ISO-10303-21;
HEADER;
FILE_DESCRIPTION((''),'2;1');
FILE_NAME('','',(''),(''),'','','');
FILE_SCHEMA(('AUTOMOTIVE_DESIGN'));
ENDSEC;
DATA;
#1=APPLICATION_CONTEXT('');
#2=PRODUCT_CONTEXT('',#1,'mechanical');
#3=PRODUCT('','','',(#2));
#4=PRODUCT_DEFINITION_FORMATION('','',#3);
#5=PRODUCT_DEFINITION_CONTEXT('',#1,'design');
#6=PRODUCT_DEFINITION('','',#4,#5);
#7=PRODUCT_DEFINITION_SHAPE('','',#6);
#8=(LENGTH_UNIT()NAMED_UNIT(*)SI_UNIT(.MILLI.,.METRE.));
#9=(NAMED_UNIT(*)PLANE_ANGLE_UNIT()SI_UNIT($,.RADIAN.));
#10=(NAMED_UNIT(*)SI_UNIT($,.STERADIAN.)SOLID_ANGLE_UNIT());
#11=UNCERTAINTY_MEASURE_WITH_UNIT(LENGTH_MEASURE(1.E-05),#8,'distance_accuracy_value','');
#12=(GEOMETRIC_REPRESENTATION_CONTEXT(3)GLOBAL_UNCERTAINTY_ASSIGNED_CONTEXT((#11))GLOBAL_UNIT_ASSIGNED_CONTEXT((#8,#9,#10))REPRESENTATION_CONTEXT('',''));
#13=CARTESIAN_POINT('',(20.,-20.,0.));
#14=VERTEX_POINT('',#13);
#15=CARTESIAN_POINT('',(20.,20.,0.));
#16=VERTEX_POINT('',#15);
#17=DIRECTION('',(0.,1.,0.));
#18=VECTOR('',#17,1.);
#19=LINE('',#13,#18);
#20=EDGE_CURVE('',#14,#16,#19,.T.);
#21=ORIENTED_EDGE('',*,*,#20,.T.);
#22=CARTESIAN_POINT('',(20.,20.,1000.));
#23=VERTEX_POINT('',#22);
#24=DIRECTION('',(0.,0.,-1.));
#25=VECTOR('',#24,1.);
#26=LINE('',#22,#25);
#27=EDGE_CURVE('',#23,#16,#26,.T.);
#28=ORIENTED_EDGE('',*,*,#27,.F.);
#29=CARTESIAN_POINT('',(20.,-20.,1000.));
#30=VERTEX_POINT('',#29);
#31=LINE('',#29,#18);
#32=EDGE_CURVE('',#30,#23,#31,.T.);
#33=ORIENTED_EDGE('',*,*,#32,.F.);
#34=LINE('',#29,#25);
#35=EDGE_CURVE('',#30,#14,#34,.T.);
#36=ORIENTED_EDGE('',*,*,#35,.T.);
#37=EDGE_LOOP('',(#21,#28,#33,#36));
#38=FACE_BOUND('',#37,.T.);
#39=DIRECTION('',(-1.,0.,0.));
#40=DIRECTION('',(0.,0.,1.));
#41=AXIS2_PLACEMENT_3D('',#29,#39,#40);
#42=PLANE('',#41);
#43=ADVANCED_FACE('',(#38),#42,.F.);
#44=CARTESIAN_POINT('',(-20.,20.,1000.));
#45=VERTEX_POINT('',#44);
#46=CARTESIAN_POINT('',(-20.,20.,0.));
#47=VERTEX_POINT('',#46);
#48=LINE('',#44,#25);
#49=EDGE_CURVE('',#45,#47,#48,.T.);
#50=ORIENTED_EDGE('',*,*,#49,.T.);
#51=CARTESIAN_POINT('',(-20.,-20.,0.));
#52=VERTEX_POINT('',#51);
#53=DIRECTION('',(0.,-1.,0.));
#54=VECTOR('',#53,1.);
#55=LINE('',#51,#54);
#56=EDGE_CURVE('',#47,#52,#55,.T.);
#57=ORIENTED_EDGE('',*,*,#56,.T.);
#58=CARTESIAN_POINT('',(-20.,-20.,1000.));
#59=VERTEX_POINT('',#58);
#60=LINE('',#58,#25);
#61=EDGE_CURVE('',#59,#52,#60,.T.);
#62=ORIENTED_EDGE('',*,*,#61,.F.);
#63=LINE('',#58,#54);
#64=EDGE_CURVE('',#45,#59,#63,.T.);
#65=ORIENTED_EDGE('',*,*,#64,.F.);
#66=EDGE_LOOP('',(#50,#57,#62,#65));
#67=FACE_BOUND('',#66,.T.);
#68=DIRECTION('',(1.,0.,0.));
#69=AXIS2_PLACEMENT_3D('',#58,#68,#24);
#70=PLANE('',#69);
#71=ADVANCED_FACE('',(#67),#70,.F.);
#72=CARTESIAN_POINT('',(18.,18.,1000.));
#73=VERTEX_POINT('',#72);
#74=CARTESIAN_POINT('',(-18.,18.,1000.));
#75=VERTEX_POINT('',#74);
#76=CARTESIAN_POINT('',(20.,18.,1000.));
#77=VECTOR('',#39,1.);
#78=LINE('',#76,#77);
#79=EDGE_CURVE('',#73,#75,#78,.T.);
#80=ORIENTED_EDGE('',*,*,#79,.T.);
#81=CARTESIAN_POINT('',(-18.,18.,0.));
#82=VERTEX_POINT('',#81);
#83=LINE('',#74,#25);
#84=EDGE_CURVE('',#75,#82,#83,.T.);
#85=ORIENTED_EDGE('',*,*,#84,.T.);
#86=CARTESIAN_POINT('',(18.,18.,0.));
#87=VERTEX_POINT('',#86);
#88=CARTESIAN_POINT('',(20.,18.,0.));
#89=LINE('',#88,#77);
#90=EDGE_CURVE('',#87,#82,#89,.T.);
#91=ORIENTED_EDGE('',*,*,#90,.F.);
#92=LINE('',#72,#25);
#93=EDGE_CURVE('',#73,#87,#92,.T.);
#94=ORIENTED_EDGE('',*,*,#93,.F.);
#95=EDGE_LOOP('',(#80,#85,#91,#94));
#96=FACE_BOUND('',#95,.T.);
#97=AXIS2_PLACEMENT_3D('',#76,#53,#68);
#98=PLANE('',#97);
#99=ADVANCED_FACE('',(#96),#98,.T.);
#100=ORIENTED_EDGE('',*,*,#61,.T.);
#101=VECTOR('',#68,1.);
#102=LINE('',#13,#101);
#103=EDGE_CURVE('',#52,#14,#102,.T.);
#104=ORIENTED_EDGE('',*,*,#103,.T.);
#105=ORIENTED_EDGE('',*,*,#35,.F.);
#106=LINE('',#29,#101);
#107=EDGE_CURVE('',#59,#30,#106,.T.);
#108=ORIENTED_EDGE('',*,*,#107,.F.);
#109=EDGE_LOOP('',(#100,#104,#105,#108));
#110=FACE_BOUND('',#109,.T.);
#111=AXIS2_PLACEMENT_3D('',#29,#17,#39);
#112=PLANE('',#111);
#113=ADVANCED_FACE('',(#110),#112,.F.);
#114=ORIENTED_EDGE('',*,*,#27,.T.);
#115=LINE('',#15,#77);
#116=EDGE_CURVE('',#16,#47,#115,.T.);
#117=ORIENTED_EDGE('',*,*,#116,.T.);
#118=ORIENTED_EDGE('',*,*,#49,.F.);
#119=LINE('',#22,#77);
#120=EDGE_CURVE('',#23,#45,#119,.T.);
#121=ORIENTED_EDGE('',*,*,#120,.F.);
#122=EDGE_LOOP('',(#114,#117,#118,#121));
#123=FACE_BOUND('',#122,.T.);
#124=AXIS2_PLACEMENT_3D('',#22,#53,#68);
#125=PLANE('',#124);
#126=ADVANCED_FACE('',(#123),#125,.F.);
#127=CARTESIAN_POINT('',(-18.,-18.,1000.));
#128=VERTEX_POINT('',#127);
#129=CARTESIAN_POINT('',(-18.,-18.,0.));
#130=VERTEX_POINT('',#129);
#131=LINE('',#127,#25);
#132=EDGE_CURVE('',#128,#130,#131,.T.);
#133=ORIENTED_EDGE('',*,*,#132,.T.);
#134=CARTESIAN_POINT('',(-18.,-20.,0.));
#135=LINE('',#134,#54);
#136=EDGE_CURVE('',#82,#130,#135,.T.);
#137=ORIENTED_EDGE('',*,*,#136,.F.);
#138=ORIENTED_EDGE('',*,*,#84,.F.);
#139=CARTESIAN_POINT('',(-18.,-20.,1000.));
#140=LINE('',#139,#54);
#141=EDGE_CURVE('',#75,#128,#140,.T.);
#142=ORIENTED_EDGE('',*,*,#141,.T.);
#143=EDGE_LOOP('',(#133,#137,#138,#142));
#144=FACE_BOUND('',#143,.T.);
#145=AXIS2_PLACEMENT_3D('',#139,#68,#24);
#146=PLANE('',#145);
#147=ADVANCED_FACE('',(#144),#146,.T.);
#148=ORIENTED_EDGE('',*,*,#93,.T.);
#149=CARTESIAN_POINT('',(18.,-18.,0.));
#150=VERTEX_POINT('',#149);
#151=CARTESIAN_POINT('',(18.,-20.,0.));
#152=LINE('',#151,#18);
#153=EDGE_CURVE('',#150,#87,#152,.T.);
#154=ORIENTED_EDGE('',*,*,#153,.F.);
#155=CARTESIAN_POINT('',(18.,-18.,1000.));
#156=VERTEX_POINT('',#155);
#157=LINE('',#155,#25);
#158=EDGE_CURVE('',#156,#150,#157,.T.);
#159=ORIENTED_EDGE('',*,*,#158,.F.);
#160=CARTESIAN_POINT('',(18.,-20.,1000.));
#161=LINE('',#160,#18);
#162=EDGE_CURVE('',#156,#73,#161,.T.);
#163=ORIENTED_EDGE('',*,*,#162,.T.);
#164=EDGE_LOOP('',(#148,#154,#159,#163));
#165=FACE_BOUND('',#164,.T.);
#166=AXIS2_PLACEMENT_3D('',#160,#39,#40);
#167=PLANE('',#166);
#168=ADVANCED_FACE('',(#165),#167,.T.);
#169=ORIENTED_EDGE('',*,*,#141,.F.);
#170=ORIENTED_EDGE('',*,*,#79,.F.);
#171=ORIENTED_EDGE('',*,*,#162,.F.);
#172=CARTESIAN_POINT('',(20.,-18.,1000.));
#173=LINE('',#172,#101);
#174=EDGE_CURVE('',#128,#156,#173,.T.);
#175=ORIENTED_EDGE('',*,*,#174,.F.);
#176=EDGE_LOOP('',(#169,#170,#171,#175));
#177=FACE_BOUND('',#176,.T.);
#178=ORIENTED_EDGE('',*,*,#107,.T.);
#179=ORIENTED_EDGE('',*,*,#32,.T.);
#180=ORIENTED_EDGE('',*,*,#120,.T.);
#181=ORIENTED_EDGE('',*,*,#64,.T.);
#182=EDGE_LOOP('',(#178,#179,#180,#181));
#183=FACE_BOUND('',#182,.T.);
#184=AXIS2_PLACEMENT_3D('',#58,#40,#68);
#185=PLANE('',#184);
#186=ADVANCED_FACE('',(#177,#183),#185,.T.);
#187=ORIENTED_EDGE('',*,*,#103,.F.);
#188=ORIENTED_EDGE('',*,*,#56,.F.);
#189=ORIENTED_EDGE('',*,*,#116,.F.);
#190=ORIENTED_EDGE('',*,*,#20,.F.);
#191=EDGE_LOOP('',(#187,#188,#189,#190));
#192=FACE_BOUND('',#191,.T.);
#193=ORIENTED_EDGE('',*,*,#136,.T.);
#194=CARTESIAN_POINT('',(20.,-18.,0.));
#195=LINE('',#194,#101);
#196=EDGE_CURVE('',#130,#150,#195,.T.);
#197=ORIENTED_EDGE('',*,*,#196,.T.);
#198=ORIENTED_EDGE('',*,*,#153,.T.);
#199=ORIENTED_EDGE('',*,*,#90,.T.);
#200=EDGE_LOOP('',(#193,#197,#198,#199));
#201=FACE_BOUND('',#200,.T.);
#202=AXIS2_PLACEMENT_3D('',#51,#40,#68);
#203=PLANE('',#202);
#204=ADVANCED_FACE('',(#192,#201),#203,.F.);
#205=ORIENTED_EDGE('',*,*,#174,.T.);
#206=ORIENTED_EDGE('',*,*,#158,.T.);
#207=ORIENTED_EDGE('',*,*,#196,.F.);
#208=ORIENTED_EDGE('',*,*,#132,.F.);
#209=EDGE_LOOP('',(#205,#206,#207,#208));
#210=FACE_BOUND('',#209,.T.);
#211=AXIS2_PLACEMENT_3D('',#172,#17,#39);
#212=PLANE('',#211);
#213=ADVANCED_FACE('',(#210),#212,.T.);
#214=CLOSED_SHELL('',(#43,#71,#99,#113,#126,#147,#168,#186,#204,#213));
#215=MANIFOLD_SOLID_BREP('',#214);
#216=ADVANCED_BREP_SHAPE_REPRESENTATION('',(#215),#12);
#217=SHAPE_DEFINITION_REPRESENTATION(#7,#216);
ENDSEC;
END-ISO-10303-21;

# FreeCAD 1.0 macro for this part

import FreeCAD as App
import Part
import Sketcher
from FreeCAD import Vector
Q = App.Units.Quantity

doc = App.newDocument("Part")
body = doc.addObject("PartDesign::Body", "Body")

# Sketch on XY plane
sketch1 = body.newObject("Sketcher::SketchObject", "Sketch")
sketch1.AttachmentSupport = (doc.getObject("XY_Plane"), [""])
sketch1.MapMode = "FlatFace"
sketch1.addGeometry([
    Part.LineSegment(Vector(-20, 20, 0), Vector(-20, -20, 0)),  # 0
    Part.LineSegment(Vector(-20, -20, 0), Vector(20, -20, 0)),  # 1
    Part.LineSegment(Vector(20, -20, 0), Vector(20, 20, 0)),  # 2
    Part.LineSegment(Vector(20, 20, 0), Vector(-20, 20, 0)),  # 3
    Part.LineSegment(Vector(18, -18, 0), Vector(-18, -18, 0)),  # 4
    Part.LineSegment(Vector(-18, -18, 0), Vector(-18, 18, 0)),  # 5
    Part.LineSegment(Vector(-18, 18, 0), Vector(18, 18, 0)),  # 6
    Part.LineSegment(Vector(18, 18, 0), Vector(18, -18, 0)),  # 7
], False)
sketch1.addConstraint([
    Sketcher.Constraint("Coincident", 0, 2, 1, 1),
    Sketcher.Constraint("Coincident", 1, 2, 2, 1),
    Sketcher.Constraint("Coincident", 2, 2, 3, 1),
    Sketcher.Constraint("Coincident", 3, 2, 0, 1),
    Sketcher.Constraint("Coincident", 4, 2, 5, 1),
    Sketcher.Constraint("Coincident", 5, 2, 6, 1),
    Sketcher.Constraint("Coincident", 6, 2, 7, 1),
    Sketcher.Constraint("Coincident", 7, 2, 4, 1),
    Sketcher.Constraint("Vertical", 0),
    Sketcher.Constraint("Horizontal", 1),
    Sketcher.Constraint("Vertical", 2),
    Sketcher.Constraint("Horizontal", 3),
    Sketcher.Constraint("Horizontal", 4),
    Sketcher.Constraint("Vertical", 5),
    Sketcher.Constraint("Horizontal", 6),
    Sketcher.Constraint("Vertical", 7),
    Sketcher.Constraint("Symmetric", 0, 2, 2, 2, -1, 1),
    Sketcher.Constraint("Symmetric", 4, 2, 6, 2, -1, 1),
    Sketcher.Constraint("Equal", 3, 0),
    Sketcher.Constraint("Equal", 6, 5),
    Sketcher.Constraint("DistanceX", 1, 1, 1, 2, Q("40 mm")),
    Sketcher.Constraint("DistanceX", 4, 2, 4, 1, Q("36 mm")),
])
pad1 = body.newObject("PartDesign::Pad", "Pad")
pad1.Profile = sketch1
pad1.Length = 1000

doc.recompute()
